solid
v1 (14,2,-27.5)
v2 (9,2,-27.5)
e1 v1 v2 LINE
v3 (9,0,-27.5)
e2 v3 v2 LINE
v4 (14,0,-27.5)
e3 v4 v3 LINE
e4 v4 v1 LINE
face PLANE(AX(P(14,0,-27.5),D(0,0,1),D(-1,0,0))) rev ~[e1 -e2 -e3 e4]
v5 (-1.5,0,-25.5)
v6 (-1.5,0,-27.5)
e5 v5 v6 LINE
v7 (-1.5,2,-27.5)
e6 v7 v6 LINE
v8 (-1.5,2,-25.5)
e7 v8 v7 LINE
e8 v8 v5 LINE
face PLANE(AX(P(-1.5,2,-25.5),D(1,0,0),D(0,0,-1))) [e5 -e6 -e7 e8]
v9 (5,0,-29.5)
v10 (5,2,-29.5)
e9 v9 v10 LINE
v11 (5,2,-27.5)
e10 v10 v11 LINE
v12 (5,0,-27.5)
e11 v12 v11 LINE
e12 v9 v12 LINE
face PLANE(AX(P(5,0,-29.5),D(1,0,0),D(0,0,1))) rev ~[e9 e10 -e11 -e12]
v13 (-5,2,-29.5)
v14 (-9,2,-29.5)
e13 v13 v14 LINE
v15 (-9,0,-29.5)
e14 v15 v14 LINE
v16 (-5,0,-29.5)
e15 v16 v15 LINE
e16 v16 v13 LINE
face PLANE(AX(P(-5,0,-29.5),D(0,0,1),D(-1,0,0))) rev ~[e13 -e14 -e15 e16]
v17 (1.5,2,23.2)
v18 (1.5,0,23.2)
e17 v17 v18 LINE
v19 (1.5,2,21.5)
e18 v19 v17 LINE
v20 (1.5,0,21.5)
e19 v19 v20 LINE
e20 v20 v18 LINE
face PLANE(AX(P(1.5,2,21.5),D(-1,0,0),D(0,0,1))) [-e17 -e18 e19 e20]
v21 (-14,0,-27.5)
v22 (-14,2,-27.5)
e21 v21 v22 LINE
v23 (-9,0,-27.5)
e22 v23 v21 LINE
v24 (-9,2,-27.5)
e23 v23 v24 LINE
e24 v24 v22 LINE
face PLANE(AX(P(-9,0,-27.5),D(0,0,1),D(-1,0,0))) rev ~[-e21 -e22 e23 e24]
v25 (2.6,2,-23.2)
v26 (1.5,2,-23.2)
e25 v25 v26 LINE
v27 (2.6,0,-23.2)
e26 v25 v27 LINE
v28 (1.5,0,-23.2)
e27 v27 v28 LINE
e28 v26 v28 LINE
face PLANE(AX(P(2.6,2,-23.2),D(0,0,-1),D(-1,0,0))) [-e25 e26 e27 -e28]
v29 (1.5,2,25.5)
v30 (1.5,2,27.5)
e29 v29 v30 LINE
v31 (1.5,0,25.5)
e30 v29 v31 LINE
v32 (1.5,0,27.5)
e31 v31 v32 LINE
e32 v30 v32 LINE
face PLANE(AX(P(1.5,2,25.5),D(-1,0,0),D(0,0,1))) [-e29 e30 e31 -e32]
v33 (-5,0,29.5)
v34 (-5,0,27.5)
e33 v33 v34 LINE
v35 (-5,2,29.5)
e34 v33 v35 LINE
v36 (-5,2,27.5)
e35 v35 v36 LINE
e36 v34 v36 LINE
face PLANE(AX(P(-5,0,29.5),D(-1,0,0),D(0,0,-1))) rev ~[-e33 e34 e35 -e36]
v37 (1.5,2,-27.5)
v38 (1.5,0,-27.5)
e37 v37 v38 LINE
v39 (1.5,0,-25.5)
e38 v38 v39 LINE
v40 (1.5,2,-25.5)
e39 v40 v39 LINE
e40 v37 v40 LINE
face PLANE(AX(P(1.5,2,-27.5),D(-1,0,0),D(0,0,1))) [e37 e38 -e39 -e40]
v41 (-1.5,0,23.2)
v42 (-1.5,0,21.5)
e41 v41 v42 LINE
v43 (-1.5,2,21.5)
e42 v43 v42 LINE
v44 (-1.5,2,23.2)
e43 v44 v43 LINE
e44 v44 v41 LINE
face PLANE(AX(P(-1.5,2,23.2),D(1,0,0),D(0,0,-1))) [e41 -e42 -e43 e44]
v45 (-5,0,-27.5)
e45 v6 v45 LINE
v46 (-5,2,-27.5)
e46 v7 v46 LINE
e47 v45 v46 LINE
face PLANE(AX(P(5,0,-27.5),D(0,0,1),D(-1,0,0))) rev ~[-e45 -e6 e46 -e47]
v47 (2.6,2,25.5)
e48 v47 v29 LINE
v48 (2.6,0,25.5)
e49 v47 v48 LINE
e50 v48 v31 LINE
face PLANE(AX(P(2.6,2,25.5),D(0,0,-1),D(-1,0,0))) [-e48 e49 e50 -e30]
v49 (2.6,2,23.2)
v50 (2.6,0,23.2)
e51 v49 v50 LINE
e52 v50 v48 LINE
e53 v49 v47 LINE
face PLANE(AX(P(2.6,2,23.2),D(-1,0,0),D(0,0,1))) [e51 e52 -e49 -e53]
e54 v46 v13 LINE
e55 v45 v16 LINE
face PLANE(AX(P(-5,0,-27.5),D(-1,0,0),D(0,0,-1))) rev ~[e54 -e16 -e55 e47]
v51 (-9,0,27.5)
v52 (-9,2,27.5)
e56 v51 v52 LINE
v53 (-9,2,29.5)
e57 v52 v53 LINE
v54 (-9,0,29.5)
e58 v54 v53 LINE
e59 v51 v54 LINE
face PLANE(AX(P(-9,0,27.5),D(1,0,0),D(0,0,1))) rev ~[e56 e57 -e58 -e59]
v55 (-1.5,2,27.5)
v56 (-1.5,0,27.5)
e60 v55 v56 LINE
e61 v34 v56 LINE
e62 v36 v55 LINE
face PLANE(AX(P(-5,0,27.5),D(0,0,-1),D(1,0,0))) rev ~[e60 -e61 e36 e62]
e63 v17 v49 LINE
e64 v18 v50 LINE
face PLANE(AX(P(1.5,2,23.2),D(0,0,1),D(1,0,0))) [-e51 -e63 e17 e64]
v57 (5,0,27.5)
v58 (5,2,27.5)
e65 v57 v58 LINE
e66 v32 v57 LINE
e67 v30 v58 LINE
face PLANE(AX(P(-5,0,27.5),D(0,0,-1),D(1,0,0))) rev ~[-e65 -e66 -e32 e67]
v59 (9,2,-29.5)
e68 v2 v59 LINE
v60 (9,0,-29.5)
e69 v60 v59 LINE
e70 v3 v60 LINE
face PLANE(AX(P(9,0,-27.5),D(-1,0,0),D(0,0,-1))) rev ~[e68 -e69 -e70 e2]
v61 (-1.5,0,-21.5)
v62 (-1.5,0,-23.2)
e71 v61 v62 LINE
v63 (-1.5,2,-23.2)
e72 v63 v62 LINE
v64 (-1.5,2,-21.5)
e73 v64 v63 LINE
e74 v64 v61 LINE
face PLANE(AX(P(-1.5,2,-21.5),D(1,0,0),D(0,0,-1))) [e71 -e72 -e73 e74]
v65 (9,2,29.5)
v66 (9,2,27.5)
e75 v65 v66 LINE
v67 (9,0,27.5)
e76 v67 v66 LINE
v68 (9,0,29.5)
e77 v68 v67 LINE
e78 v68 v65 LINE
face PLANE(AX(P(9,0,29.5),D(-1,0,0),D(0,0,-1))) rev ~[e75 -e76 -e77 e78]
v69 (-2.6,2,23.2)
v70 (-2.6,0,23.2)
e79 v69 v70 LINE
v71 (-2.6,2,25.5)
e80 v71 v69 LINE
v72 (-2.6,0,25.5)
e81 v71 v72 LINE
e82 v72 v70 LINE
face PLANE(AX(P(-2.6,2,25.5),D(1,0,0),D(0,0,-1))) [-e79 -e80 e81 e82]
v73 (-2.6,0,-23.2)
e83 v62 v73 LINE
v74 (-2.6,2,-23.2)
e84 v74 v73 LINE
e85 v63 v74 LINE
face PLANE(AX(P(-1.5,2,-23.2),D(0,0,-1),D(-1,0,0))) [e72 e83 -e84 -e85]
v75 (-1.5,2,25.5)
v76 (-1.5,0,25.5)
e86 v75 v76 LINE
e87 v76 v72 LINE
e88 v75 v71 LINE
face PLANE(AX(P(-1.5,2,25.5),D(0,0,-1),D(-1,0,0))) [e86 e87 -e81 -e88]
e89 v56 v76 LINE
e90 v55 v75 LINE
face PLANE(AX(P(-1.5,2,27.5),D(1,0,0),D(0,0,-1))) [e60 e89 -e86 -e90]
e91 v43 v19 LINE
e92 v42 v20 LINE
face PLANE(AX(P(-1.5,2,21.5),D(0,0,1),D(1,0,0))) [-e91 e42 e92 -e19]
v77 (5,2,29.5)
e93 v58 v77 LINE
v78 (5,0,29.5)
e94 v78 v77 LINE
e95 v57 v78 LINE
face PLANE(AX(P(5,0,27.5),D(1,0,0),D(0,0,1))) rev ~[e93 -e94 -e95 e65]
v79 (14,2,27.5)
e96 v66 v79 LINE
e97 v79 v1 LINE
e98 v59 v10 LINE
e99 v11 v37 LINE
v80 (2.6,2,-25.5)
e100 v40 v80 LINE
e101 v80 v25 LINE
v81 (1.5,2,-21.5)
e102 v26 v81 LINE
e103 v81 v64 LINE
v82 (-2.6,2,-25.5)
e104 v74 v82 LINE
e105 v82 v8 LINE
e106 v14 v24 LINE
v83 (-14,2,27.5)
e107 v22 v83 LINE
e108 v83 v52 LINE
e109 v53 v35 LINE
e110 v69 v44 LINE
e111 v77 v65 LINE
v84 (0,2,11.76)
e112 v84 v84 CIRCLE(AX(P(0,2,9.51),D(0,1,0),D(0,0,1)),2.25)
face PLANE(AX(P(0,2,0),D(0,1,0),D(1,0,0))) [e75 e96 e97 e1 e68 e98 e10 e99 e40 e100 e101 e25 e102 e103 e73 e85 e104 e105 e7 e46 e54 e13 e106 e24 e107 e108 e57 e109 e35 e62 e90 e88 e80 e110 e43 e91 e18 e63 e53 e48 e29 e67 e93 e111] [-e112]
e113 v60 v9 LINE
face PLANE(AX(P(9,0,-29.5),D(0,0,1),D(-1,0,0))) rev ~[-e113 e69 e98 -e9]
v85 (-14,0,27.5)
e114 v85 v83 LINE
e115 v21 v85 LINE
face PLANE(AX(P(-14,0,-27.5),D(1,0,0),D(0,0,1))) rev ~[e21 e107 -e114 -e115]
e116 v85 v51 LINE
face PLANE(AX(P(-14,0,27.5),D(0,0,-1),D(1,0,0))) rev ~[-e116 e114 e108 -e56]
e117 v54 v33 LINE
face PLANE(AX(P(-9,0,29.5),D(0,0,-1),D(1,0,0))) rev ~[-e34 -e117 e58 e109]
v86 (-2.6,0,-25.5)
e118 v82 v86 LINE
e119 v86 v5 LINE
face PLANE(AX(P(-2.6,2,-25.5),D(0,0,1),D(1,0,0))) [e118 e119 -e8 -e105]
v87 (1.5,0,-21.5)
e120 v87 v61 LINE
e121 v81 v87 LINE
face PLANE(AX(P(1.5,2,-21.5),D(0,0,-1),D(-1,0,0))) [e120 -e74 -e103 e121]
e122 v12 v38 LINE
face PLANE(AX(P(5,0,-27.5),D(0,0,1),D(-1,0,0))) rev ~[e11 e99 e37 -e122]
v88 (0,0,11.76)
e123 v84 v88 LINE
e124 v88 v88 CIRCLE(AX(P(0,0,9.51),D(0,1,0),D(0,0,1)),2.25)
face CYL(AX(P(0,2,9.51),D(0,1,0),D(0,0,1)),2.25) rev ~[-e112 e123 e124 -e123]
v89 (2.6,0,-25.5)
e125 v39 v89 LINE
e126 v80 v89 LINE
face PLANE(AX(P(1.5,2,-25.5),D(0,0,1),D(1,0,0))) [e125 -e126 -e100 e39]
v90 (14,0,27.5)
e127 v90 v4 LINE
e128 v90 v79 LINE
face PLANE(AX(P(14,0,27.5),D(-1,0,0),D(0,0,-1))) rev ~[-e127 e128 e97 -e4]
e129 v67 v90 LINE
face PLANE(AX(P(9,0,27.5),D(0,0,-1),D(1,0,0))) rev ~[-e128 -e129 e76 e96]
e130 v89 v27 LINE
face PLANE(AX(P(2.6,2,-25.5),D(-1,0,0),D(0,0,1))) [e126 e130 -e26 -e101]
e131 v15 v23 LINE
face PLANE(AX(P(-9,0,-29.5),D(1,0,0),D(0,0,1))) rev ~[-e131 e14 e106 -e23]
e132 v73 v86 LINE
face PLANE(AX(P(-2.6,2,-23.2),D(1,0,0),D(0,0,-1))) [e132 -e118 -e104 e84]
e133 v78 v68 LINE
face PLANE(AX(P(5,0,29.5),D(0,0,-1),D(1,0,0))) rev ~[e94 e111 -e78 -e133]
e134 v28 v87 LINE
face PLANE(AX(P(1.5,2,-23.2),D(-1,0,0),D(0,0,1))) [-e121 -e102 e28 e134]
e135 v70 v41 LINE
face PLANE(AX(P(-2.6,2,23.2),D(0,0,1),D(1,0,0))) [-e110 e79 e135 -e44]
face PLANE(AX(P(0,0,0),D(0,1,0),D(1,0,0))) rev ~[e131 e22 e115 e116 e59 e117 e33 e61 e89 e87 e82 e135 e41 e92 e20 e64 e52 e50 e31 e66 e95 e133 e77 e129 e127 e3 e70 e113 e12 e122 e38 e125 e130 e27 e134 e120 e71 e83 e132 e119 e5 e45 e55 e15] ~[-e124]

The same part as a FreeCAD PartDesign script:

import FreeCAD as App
import Part
import Sketcher

V = App.Vector
Q = App.Units.Quantity

doc = App.newDocument("Part")
params = doc.addObject("Spreadsheet::Sheet", "Params")
for row, (alias, value) in enumerate([
    ("sketch1_width", "5 mm"),
    ("sketch1_width2", "4 mm"),
    ("sketch1_width3", "10 mm"),
    ("sketch1_height", "2 mm"),
    ("sketch1_height2", "55 mm"),
    ("pad1_length", "2 mm"),
    ("sketch2_width", "3 mm"),
    ("sketch2_height", "2 mm"),
    ("sketch2_width2", "1.1 mm"),
    ("sketch2_height2", "1.7 mm"),
    ("sketch2_height3", "2.3 mm"),
    ("pocket1_length", "2 mm"),
    ("sketch3_diameter", "4.5 mm"),
    ("pocket2_length", "2 mm"),
], start=1):
    params.set(f"A{row}", alias)
    params.set(f"B{row}", "=" + value)
    params.setAlias(f"B{row}", alias)

body = doc.addObject("PartDesign::Body", "Body")

sketch1 = doc.addObject("Sketcher::SketchObject", "Sketch")
body.addObject(sketch1)
sketch1.AttachmentSupport = (doc.XZ_Plane, [""])
sketch1.MapMode = "FlatFace"
sketch1.addGeometry([
    Part.LineSegment(V(-14, 27.5, 0), V(-9, 27.5, 0)),
    Part.LineSegment(V(-9, 27.5, 0), V(-9, 29.5, 0)),
    Part.LineSegment(V(-9, 29.5, 0), V(-5, 29.5, 0)),
    Part.LineSegment(V(-5, 29.5, 0), V(-5, 27.5, 0)),
    Part.LineSegment(V(-5, 27.5, 0), V(5, 27.5, 0)),
    Part.LineSegment(V(5, 27.5, 0), V(5, 29.5, 0)),
    Part.LineSegment(V(5, 29.5, 0), V(9, 29.5, 0)),
    Part.LineSegment(V(9, 29.5, 0), V(9, 27.5, 0)),
    Part.LineSegment(V(9, 27.5, 0), V(14, 27.5, 0)),
    Part.LineSegment(V(14, 27.5, 0), V(14, -27.5, 0)),
    Part.LineSegment(V(14, -27.5, 0), V(9, -27.5, 0)),
    Part.LineSegment(V(9, -27.5, 0), V(9, -29.5, 0)),
    Part.LineSegment(V(9, -29.5, 0), V(5, -29.5, 0)),
    Part.LineSegment(V(5, -29.5, 0), V(5, -27.5, 0)),
    Part.LineSegment(V(5, -27.5, 0), V(-5, -27.5, 0)),
    Part.LineSegment(V(-5, -27.5, 0), V(-5, -29.5, 0)),
    Part.LineSegment(V(-5, -29.5, 0), V(-9, -29.5, 0)),
    Part.LineSegment(V(-9, -29.5, 0), V(-9, -27.5, 0)),
    Part.LineSegment(V(-9, -27.5, 0), V(-14, -27.5, 0)),
    Part.LineSegment(V(-14, -27.5, 0), V(-14, 27.5, 0)),
], False)
sketch1.addConstraint([
    Sketcher.Constraint("Coincident", 0, 2, 1, 1),
    Sketcher.Constraint("Coincident", 1, 2, 2, 1),
    Sketcher.Constraint("Coincident", 2, 2, 3, 1),
    Sketcher.Constraint("Coincident", 3, 2, 4, 1),
    Sketcher.Constraint("Coincident", 4, 2, 5, 1),
    Sketcher.Constraint("Coincident", 5, 2, 6, 1),
    Sketcher.Constraint("Coincident", 6, 2, 7, 1),
    Sketcher.Constraint("Coincident", 7, 2, 8, 1),
    Sketcher.Constraint("Coincident", 8, 2, 9, 1),
    Sketcher.Constraint("Coincident", 9, 2, 10, 1),
    Sketcher.Constraint("Coincident", 10, 2, 11, 1),
    Sketcher.Constraint("Coincident", 11, 2, 12, 1),
    Sketcher.Constraint("Coincident", 12, 2, 13, 1),
    Sketcher.Constraint("Coincident", 13, 2, 14, 1),
    Sketcher.Constraint("Coincident", 14, 2, 15, 1),
    Sketcher.Constraint("Coincident", 15, 2, 16, 1),
    Sketcher.Constraint("Coincident", 16, 2, 17, 1),
    Sketcher.Constraint("Coincident", 17, 2, 18, 1),
    Sketcher.Constraint("Coincident", 18, 2, 19, 1),
    Sketcher.Constraint("Coincident", 19, 2, 0, 1),
    Sketcher.Constraint("Horizontal", 0),
    Sketcher.Constraint("Vertical", 1),
    Sketcher.Constraint("Horizontal", 2),
    Sketcher.Constraint("Vertical", 3),
    Sketcher.Constraint("Horizontal", 4),
    Sketcher.Constraint("Vertical", 5),
    Sketcher.Constraint("Horizontal", 6),
    Sketcher.Constraint("Vertical", 7),
    Sketcher.Constraint("Horizontal", 8),
    Sketcher.Constraint("Vertical", 9),
    Sketcher.Constraint("Horizontal", 10),
    Sketcher.Constraint("Vertical", 11),
    Sketcher.Constraint("Horizontal", 12),
    Sketcher.Constraint("Vertical", 13),
    Sketcher.Constraint("Horizontal", 14),
    Sketcher.Constraint("Vertical", 15),
    Sketcher.Constraint("Horizontal", 16),
    Sketcher.Constraint("Vertical", 17),
    Sketcher.Constraint("Horizontal", 18),
    Sketcher.Constraint("Vertical", 19),
    Sketcher.Constraint("Symmetric", 0, 2, 10, 2, -1, 1),
    Sketcher.Constraint("Symmetric", 2, 2, 12, 2, -1, 1),
    Sketcher.Constraint("Symmetric", 4, 2, 14, 2, -1, 1),
    Sketcher.Constraint("Symmetric", 6, 2, 16, 2, -1, 1),
    Sketcher.Constraint("Symmetric", 8, 2, 18, 2, -1, 1),
    Sketcher.Constraint("Symmetric", 2, 2, 5, 2, -2),
    Sketcher.Constraint("Symmetric", 0, 2, 7, 2, -2),
    Sketcher.Constraint("Horizontal", 0, 2, 3, 2),
    Sketcher.Constraint("DistanceX", 0, 1, 0, 2, Q("5 mm")),
    Sketcher.Constraint("DistanceX", 2, 1, 2, 2, Q("4 mm")),
    Sketcher.Constraint("DistanceX", 4, 1, 4, 2, Q("10 mm")),
    Sketcher.Constraint("DistanceY", 1, 1, 1, 2, Q("2 mm")),
    Sketcher.Constraint("DistanceY", 9, 2, 9, 1, Q("55 mm")),
])
sketch1.setExpression("Constraints[48]", "Params.sketch1_width")
sketch1.setExpression("Constraints[49]", "Params.sketch1_width2")
sketch1.setExpression("Constraints[50]", "Params.sketch1_width3")
sketch1.setExpression("Constraints[51]", "Params.sketch1_height")
sketch1.setExpression("Constraints[52]", "Params.sketch1_height2")
pad1 = doc.addObject("PartDesign::Pad", "Pad")
body.addObject(pad1)
pad1.Profile = sketch1
pad1.setExpression("Length", "Params.pad1_length")
pad1.Reversed = True

sketch2 = doc.addObject("Sketcher::SketchObject", "Sketch001")
body.addObject(sketch2)
sketch2.AttachmentSupport = (doc.XZ_Plane, [""])
sketch2.MapMode = "FlatFace"
sketch2.AttachmentOffset = App.Placement(V(0, 0, -2), App.Rotation())
sketch2.addGeometry([
    Part.LineSegment(V(-2.6, -23.2, 0), V(-1.5, -23.2, 0)),
    Part.LineSegment(V(-1.5, -23.2, 0), V(-1.5, -21.5, 0)),
    Part.LineSegment(V(-1.5, -21.5, 0), V(1.5, -21.5, 0)),
    Part.LineSegment(V(1.5, -21.5, 0), V(1.5, -23.2, 0)),
    Part.LineSegment(V(1.5, -23.2, 0), V(2.6, -23.2, 0)),
    Part.LineSegment(V(2.6, -23.2, 0), V(2.6, -25.5, 0)),
    Part.LineSegment(V(2.6, -25.5, 0), V(1.5, -25.5, 0)),
    Part.LineSegment(V(1.5, -25.5, 0), V(1.5, -27.5, 0)),
    Part.LineSegment(V(1.5, -27.5, 0), V(-1.5, -27.5, 0)),
    Part.LineSegment(V(-1.5, -27.5, 0), V(-1.5, -25.5, 0)),
    Part.LineSegment(V(-1.5, -25.5, 0), V(-2.6, -25.5, 0)),
    Part.LineSegment(V(-2.6, -25.5, 0), V(-2.6, -23.2, 0)),
    Part.LineSegment(V(1.5, 27.5, 0), V(1.5, 25.5, 0)),
    Part.LineSegment(V(1.5, 25.5, 0), V(2.6, 25.5, 0)),
    Part.LineSegment(V(2.6, 25.5, 0), V(2.6, 23.2, 0)),
    Part.LineSegment(V(2.6, 23.2, 0), V(1.5, 23.2, 0)),
    Part.LineSegment(V(1.5, 23.2, 0), V(1.5, 21.5, 0)),
    Part.LineSegment(V(1.5, 21.5, 0), V(-1.5, 21.5, 0)),
    Part.LineSegment(V(-1.5, 21.5, 0), V(-1.5, 23.2, 0)),
    Part.LineSegment(V(-1.5, 23.2, 0), V(-2.6, 23.2, 0)),
    Part.LineSegment(V(-2.6, 23.2, 0), V(-2.6, 25.5, 0)),
    Part.LineSegment(V(-2.6, 25.5, 0), V(-1.5, 25.5, 0)),
    Part.LineSegment(V(-1.5, 25.5, 0), V(-1.5, 27.5, 0)),
    Part.LineSegment(V(-1.5, 27.5, 0), V(1.5, 27.5, 0)),
], False)
sketch2.addConstraint([
    Sketcher.Constraint("Coincident", 0, 2, 1, 1),
    Sketcher.Constraint("Coincident", 1, 2, 2, 1),
    Sketcher.Constraint("Coincident", 2, 2, 3, 1),
    Sketcher.Constraint("Coincident", 3, 2, 4, 1),
    Sketcher.Constraint("Coincident", 4, 2, 5, 1),
    Sketcher.Constraint("Coincident", 5, 2, 6, 1),
    Sketcher.Constraint("Coincident", 6, 2, 7, 1),
    Sketcher.Constraint("Coincident", 7, 2, 8, 1),
    Sketcher.Constraint("Coincident", 8, 2, 9, 1),
    Sketcher.Constraint("Coincident", 9, 2, 10, 1),
    Sketcher.Constraint("Coincident", 10, 2, 11, 1),
    Sketcher.Constraint("Coincident", 11, 2, 0, 1),
    Sketcher.Constraint("Coincident", 12, 2, 13, 1),
    Sketcher.Constraint("Coincident", 13, 2, 14, 1),
    Sketcher.Constraint("Coincident", 14, 2, 15, 1),
    Sketcher.Constraint("Coincident", 15, 2, 16, 1),
    Sketcher.Constraint("Coincident", 16, 2, 17, 1),
    Sketcher.Constraint("Coincident", 17, 2, 18, 1),
    Sketcher.Constraint("Coincident", 18, 2, 19, 1),
    Sketcher.Constraint("Coincident", 19, 2, 20, 1),
    Sketcher.Constraint("Coincident", 20, 2, 21, 1),
    Sketcher.Constraint("Coincident", 21, 2, 22, 1),
    Sketcher.Constraint("Coincident", 22, 2, 23, 1),
    Sketcher.Constraint("Coincident", 23, 2, 12, 1),
    Sketcher.Constraint("Horizontal", 0),
    Sketcher.Constraint("Vertical", 1),
    Sketcher.Constraint("Horizontal", 2),
    Sketcher.Constraint("Vertical", 3),
    Sketcher.Constraint("Horizontal", 4),
    Sketcher.Constraint("Vertical", 5),
    Sketcher.Constraint("Horizontal", 6),
    Sketcher.Constraint("Vertical", 7),
    Sketcher.Constraint("Horizontal", 8),
    Sketcher.Constraint("Vertical", 9),
    Sketcher.Constraint("Horizontal", 10),
    Sketcher.Constraint("Vertical", 11),
    Sketcher.Constraint("Vertical", 12),
    Sketcher.Constraint("Horizontal", 13),
    Sketcher.Constraint("Vertical", 14),
    Sketcher.Constraint("Horizontal", 15),
    Sketcher.Constraint("Vertical", 16),
    Sketcher.Constraint("Horizontal", 17),
    Sketcher.Constraint("Vertical", 18),
    Sketcher.Constraint("Horizontal", 19),
    Sketcher.Constraint("Vertical", 20),
    Sketcher.Constraint("Horizontal", 21),
    Sketcher.Constraint("Vertical", 22),
    Sketcher.Constraint("Horizontal", 23),
    Sketcher.Constraint("Symmetric", 9, 2, 12, 2, -1, 1),
    Sketcher.Constraint("Symmetric", 11, 2, 14, 2, -1, 1),
    Sketcher.Constraint("Symmetric", 1, 2, 16, 2, -1, 1),
    Sketcher.Constraint("Symmetric", 3, 2, 18, 2, -1, 1),
    Sketcher.Constraint("Symmetric", 5, 2, 20, 2, -1, 1),
    Sketcher.Constraint("Symmetric", 7, 2, 22, 2, -1, 1),
    Sketcher.Constraint("Symmetric", 0, 2, 3, 2, -2),
    Sketcher.Constraint("Symmetric", 6, 2, 9, 2, -2),
    Sketcher.Constraint("Vertical", 3, 2, 6, 2),
    Sketcher.Constraint("Vertical", 5, 2, 13, 2),
    Sketcher.Constraint("DistanceX", 2, 1, 2, 2, Q("3 mm")),
    Sketcher.Constraint("DistanceY", 7, 2, 7, 1, Q("2 mm")),
    Sketcher.Constraint("DistanceX", 0, 1, 0, 2, Q("1.1 mm")),
    Sketcher.Constraint("DistanceY", 1, 1, 1, 2, Q("1.7 mm")),
    Sketcher.Constraint("DistanceY", 5, 2, 5, 1, Q("2.3 mm")),
    Sketcher.Constraint("DistanceY", 2, 2, 12, 2, Q("47 mm")),
])
sketch2.setExpression("Constraints[58]", "Params.sketch2_width")
sketch2.setExpression("Constraints[59]", "Params.sketch2_height")
sketch2.setExpression("Constraints[60]", "Params.sketch2_width2")
sketch2.setExpression("Constraints[61]", "Params.sketch2_height2")
sketch2.setExpression("Constraints[62]", "Params.sketch2_height3")
pocket1 = doc.addObject("PartDesign::Pocket", "Pocket")
body.addObject(pocket1)
pocket1.Profile = sketch2
pocket1.setExpression("Length", "Params.pocket1_length")
pocket1.Reversed = True

sketch3 = doc.addObject("Sketcher::SketchObject", "Sketch002")
body.addObject(sketch3)
sketch3.AttachmentSupport = (doc.XZ_Plane, [""])
sketch3.MapMode = "FlatFace"
sketch3.AttachmentOffset = App.Placement(V(0, 0, -2), App.Rotation())
sketch3.addGeometry(Part.Circle(V(0, 9.5, 0), V(0, 0, 1), 2.2), False)
sketch3.addConstraint([
    Sketcher.Constraint("PointOnObject", 0, 3, -2),
    Sketcher.Constraint("Diameter", 0, Q("4.5 mm")),
    Sketcher.Constraint("DistanceY", -1, 1, 0, 3, Q("9.51 mm")),
])
sketch3.setExpression("Constraints[1]", "Params.sketch3_diameter")
pocket2 = doc.addObject("PartDesign::Pocket", "Pocket001")
body.addObject(pocket2)
pocket2.Profile = sketch3
pocket2.setExpression("Length", "Params.pocket2_length")
pocket2.Reversed = True

doc.recompute()
